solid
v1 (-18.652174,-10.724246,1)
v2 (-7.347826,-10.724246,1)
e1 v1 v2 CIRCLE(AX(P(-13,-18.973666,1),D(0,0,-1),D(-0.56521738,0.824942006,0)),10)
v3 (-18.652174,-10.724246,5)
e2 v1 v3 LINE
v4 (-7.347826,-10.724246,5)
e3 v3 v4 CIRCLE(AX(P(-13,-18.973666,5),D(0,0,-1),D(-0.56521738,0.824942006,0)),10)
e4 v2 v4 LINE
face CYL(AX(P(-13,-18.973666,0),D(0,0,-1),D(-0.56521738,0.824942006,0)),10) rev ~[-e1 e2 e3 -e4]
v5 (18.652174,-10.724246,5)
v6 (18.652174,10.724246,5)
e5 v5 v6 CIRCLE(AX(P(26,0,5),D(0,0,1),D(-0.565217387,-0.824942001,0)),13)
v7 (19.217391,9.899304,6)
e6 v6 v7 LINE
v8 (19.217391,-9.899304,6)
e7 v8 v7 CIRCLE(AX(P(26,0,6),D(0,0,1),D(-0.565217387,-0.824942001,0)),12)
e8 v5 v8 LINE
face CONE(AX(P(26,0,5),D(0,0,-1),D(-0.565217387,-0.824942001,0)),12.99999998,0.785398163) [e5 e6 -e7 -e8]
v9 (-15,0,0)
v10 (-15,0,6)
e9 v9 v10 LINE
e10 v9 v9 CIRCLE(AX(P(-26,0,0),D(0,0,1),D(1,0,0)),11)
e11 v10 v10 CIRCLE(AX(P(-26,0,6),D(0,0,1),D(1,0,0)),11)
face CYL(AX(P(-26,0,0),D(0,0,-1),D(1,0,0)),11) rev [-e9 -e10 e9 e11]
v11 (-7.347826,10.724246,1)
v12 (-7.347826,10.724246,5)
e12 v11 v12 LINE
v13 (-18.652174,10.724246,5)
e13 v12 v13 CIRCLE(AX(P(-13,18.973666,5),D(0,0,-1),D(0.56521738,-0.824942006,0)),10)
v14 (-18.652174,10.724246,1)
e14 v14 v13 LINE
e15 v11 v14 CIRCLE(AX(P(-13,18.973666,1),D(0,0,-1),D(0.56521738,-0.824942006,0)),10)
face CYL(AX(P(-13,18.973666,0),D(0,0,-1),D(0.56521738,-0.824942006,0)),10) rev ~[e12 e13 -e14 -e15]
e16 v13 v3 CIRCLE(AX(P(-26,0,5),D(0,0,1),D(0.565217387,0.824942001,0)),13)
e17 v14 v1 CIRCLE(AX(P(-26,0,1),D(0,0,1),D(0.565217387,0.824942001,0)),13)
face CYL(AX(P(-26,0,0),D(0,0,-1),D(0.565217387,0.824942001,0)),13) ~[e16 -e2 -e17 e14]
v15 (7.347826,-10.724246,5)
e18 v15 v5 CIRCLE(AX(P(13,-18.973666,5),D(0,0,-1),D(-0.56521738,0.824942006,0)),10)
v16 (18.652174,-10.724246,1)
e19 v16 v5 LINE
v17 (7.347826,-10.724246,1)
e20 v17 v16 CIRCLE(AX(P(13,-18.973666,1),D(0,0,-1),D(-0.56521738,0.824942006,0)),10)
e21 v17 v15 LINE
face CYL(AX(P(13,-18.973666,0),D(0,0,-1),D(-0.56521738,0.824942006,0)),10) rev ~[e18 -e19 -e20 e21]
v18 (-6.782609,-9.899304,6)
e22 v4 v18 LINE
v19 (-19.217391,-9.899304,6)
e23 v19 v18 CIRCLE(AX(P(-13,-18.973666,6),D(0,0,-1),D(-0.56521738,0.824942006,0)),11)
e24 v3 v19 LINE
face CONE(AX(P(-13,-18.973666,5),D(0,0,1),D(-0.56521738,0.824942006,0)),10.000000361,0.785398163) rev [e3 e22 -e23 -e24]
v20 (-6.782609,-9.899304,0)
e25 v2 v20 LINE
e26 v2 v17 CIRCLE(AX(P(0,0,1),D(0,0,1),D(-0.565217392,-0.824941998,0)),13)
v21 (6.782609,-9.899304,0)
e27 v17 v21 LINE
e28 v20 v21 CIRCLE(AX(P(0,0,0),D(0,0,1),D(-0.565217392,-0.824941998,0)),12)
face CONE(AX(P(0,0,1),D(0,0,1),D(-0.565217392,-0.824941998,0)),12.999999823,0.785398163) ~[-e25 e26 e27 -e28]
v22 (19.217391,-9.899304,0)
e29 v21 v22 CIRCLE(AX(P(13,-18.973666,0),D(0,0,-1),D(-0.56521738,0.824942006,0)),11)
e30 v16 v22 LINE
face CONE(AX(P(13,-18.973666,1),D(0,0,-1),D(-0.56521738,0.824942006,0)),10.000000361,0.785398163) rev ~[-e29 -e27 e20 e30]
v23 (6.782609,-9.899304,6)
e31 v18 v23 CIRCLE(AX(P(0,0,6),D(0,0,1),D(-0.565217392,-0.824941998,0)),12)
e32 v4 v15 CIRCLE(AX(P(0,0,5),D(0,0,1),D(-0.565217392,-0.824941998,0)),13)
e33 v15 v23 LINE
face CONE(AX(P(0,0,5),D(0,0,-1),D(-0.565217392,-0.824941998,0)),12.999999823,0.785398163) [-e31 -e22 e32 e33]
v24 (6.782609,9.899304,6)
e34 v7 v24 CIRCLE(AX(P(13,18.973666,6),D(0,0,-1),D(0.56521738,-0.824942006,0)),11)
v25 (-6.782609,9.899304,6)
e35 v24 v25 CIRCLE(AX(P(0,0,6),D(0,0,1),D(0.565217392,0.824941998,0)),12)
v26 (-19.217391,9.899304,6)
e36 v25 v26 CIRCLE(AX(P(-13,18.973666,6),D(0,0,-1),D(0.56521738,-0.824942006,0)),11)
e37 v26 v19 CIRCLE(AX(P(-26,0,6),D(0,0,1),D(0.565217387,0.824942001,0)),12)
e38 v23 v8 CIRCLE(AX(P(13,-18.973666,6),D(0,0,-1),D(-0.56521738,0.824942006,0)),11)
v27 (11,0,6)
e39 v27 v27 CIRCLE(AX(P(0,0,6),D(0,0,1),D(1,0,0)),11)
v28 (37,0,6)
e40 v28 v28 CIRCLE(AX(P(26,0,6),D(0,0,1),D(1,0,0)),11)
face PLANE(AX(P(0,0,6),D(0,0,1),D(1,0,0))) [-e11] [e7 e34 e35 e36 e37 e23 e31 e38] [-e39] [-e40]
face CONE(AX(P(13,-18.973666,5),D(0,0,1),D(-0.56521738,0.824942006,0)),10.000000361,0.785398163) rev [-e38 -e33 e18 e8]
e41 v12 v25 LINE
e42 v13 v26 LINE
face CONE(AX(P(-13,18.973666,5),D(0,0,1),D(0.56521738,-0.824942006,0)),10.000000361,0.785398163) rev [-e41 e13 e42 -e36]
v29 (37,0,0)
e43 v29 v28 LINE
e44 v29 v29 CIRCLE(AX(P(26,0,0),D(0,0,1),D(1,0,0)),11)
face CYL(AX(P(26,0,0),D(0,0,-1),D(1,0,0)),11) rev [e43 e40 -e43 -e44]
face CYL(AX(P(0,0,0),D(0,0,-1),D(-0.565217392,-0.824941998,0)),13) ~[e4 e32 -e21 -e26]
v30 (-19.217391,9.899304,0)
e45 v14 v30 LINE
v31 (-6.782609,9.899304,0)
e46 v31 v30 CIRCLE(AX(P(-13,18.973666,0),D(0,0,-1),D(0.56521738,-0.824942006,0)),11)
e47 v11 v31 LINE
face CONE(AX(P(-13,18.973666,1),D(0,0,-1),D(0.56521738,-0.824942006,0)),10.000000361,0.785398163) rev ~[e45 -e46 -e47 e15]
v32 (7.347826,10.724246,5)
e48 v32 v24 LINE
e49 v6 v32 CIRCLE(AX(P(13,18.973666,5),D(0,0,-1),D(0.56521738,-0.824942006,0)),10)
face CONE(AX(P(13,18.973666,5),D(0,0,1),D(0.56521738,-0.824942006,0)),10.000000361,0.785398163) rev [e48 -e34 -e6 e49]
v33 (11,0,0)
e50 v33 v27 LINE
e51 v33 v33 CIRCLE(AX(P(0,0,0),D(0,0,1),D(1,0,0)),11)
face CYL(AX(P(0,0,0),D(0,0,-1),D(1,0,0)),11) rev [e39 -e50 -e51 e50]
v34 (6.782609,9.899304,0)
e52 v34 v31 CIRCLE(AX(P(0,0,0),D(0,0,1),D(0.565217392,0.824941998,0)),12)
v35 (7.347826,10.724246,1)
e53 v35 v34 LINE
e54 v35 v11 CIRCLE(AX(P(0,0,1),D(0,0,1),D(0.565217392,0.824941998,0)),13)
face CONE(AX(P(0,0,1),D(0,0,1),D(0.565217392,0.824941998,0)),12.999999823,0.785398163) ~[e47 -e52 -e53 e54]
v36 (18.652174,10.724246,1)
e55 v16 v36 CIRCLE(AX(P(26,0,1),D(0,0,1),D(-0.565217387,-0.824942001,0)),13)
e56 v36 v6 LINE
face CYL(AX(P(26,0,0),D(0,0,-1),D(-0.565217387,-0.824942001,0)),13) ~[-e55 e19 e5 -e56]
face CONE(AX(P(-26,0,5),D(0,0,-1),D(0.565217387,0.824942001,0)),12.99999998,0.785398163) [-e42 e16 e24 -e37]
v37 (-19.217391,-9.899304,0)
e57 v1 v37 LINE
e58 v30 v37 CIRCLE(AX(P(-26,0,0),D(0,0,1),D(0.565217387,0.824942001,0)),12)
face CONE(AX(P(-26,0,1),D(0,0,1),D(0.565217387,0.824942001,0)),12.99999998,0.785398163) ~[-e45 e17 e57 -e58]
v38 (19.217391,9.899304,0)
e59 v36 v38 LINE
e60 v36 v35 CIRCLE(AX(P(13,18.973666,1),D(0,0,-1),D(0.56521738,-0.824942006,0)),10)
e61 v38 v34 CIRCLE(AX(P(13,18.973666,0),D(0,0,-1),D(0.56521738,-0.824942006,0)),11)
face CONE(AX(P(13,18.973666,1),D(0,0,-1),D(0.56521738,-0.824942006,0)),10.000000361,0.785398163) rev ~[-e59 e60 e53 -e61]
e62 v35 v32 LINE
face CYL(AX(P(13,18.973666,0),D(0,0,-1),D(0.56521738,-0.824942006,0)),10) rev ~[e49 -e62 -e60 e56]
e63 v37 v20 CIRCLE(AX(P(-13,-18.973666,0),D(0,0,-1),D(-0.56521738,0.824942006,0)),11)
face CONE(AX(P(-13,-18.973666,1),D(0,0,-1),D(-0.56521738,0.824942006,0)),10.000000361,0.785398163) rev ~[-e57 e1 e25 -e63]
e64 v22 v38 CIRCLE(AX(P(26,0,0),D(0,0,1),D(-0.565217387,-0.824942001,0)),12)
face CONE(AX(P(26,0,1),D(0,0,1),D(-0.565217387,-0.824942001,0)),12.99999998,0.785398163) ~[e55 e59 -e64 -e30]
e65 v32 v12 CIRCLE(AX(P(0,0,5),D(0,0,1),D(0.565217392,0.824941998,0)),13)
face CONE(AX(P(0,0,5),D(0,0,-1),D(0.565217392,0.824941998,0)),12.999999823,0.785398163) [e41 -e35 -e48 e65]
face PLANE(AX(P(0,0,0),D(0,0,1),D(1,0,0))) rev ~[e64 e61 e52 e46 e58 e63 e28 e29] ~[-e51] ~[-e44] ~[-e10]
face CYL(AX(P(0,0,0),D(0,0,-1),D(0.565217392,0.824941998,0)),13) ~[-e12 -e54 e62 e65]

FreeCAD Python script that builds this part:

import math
import FreeCAD as App
import Part
import Sketcher
from FreeCAD import Vector


def edges_at(feature, points):
    """Names of the edges that pass closest to the given points."""
    edges = feature.Shape.Edges
    near = lambda p: min(range(len(edges)), key=lambda i: edges[i].distToShape(Part.Vertex(*p))[0])
    return sorted({f"Edge{near(p) + 1}" for p in points})

doc = App.newDocument("Part")
body = doc.addObject("PartDesign::Body", "Body")

# Sketch on XY plane
sketch1 = body.newObject("Sketcher::SketchObject", "Sketch")
sketch1.AttachmentSupport = (doc.getObject("XY_Plane"), [""])
sketch1.MapMode = "FlatFace"
sketch1.addGeometry([
    Part.ArcOfCircle(Part.Circle(Vector(-13, 19, 0), Vector(0, 0, 1), 10), math.radians(-124), math.radians(-56)),  # 0
    Part.ArcOfCircle(Part.Circle(Vector(-26, 0, 0), Vector(0, 0, 1), 13), math.radians(56), math.radians(304)),  # 1
    Part.ArcOfCircle(Part.Circle(Vector(-13, -19, 0), Vector(0, 0, 1), 10), math.radians(56), math.radians(124)),  # 2
    Part.ArcOfCircle(Part.Circle(Vector(0, 0, 0), Vector(0, 0, 1), 13), math.radians(-124), math.radians(-56)),  # 3
    Part.ArcOfCircle(Part.Circle(Vector(13, -19, 0), Vector(0, 0, 1), 10), math.radians(56), math.radians(124)),  # 4
    Part.ArcOfCircle(Part.Circle(Vector(26, 0, 0), Vector(0, 0, 1), 13), math.radians(-124), math.radians(124)),  # 5
    Part.ArcOfCircle(Part.Circle(Vector(13, 19, 0), Vector(0, 0, 1), 10), math.radians(-124), math.radians(-56)),  # 6
    Part.ArcOfCircle(Part.Circle(Vector(0, 0, 0), Vector(0, 0, 1), 13), math.radians(56), math.radians(124)),  # 7
    Part.Circle(Vector(-26, 0, 0), Vector(0, 0, 1), 11),  # 8
    Part.Circle(Vector(0, 0, 0), Vector(0, 0, 1), 11),  # 9
    Part.Circle(Vector(26, 0, 0), Vector(0, 0, 1), 11),  # 10
], False)
sketch1.addConstraint([
    Sketcher.Constraint("Tangent", 0, 1, 1, 1),
    Sketcher.Constraint("Tangent", 1, 2, 2, 2),
    Sketcher.Constraint("Tangent", 2, 1, 3, 1),
    Sketcher.Constraint("Tangent", 3, 2, 4, 2),
    Sketcher.Constraint("Tangent", 4, 1, 5, 1),
    Sketcher.Constraint("Tangent", 5, 2, 6, 2),
    Sketcher.Constraint("Tangent", 6, 1, 7, 1),
    Sketcher.Constraint("Tangent", 7, 2, 0, 2),
    Sketcher.Constraint("Coincident", 3, 3, -1, 1),
    Sketcher.Constraint("Coincident", 7, 3, -1, 1),
    Sketcher.Constraint("Coincident", 9, 3, -1, 1),
    Sketcher.Constraint("Coincident", 8, 3, 1, 3),
    Sketcher.Constraint("Coincident", 10, 3, 5, 3),
    Sketcher.Constraint("Equal", 0, 2),
    Sketcher.Constraint("Equal", 1, 3),
    Sketcher.Constraint("Equal", 2, 4),
    Sketcher.Constraint("Equal", 3, 5),
    Sketcher.Constraint("Equal", 4, 6),
    Sketcher.Constraint("Equal", 5, 7),
    Sketcher.Constraint("Equal", 8, 9),
    Sketcher.Constraint("Equal", 9, 10),
    Sketcher.Constraint("Symmetric", 1, 3, 5, 3, -1, 1),
    Sketcher.Constraint("PointOnObject", 1, 3, -1),
    Sketcher.Constraint("Diameter", 8, 22.0),
    Sketcher.Constraint("Radius", 0, 10.0),
    Sketcher.Constraint("Radius", 1, 13.0),
    Sketcher.Constraint("DistanceX", 0, 3, -1, 1, 13.0),
])
pad1 = body.newObject("PartDesign::Pad", "Pad")
pad1.Profile = sketch1
pad1.Length = 6
doc.recompute()

chamfer = body.newObject("PartDesign::Chamfer", "Chamfer")
chamfer.Base = (pad1, edges_at(pad1, [(39, 0, 6), (39, 0, 0)]))
chamfer.Size = 1

doc.recompute()
